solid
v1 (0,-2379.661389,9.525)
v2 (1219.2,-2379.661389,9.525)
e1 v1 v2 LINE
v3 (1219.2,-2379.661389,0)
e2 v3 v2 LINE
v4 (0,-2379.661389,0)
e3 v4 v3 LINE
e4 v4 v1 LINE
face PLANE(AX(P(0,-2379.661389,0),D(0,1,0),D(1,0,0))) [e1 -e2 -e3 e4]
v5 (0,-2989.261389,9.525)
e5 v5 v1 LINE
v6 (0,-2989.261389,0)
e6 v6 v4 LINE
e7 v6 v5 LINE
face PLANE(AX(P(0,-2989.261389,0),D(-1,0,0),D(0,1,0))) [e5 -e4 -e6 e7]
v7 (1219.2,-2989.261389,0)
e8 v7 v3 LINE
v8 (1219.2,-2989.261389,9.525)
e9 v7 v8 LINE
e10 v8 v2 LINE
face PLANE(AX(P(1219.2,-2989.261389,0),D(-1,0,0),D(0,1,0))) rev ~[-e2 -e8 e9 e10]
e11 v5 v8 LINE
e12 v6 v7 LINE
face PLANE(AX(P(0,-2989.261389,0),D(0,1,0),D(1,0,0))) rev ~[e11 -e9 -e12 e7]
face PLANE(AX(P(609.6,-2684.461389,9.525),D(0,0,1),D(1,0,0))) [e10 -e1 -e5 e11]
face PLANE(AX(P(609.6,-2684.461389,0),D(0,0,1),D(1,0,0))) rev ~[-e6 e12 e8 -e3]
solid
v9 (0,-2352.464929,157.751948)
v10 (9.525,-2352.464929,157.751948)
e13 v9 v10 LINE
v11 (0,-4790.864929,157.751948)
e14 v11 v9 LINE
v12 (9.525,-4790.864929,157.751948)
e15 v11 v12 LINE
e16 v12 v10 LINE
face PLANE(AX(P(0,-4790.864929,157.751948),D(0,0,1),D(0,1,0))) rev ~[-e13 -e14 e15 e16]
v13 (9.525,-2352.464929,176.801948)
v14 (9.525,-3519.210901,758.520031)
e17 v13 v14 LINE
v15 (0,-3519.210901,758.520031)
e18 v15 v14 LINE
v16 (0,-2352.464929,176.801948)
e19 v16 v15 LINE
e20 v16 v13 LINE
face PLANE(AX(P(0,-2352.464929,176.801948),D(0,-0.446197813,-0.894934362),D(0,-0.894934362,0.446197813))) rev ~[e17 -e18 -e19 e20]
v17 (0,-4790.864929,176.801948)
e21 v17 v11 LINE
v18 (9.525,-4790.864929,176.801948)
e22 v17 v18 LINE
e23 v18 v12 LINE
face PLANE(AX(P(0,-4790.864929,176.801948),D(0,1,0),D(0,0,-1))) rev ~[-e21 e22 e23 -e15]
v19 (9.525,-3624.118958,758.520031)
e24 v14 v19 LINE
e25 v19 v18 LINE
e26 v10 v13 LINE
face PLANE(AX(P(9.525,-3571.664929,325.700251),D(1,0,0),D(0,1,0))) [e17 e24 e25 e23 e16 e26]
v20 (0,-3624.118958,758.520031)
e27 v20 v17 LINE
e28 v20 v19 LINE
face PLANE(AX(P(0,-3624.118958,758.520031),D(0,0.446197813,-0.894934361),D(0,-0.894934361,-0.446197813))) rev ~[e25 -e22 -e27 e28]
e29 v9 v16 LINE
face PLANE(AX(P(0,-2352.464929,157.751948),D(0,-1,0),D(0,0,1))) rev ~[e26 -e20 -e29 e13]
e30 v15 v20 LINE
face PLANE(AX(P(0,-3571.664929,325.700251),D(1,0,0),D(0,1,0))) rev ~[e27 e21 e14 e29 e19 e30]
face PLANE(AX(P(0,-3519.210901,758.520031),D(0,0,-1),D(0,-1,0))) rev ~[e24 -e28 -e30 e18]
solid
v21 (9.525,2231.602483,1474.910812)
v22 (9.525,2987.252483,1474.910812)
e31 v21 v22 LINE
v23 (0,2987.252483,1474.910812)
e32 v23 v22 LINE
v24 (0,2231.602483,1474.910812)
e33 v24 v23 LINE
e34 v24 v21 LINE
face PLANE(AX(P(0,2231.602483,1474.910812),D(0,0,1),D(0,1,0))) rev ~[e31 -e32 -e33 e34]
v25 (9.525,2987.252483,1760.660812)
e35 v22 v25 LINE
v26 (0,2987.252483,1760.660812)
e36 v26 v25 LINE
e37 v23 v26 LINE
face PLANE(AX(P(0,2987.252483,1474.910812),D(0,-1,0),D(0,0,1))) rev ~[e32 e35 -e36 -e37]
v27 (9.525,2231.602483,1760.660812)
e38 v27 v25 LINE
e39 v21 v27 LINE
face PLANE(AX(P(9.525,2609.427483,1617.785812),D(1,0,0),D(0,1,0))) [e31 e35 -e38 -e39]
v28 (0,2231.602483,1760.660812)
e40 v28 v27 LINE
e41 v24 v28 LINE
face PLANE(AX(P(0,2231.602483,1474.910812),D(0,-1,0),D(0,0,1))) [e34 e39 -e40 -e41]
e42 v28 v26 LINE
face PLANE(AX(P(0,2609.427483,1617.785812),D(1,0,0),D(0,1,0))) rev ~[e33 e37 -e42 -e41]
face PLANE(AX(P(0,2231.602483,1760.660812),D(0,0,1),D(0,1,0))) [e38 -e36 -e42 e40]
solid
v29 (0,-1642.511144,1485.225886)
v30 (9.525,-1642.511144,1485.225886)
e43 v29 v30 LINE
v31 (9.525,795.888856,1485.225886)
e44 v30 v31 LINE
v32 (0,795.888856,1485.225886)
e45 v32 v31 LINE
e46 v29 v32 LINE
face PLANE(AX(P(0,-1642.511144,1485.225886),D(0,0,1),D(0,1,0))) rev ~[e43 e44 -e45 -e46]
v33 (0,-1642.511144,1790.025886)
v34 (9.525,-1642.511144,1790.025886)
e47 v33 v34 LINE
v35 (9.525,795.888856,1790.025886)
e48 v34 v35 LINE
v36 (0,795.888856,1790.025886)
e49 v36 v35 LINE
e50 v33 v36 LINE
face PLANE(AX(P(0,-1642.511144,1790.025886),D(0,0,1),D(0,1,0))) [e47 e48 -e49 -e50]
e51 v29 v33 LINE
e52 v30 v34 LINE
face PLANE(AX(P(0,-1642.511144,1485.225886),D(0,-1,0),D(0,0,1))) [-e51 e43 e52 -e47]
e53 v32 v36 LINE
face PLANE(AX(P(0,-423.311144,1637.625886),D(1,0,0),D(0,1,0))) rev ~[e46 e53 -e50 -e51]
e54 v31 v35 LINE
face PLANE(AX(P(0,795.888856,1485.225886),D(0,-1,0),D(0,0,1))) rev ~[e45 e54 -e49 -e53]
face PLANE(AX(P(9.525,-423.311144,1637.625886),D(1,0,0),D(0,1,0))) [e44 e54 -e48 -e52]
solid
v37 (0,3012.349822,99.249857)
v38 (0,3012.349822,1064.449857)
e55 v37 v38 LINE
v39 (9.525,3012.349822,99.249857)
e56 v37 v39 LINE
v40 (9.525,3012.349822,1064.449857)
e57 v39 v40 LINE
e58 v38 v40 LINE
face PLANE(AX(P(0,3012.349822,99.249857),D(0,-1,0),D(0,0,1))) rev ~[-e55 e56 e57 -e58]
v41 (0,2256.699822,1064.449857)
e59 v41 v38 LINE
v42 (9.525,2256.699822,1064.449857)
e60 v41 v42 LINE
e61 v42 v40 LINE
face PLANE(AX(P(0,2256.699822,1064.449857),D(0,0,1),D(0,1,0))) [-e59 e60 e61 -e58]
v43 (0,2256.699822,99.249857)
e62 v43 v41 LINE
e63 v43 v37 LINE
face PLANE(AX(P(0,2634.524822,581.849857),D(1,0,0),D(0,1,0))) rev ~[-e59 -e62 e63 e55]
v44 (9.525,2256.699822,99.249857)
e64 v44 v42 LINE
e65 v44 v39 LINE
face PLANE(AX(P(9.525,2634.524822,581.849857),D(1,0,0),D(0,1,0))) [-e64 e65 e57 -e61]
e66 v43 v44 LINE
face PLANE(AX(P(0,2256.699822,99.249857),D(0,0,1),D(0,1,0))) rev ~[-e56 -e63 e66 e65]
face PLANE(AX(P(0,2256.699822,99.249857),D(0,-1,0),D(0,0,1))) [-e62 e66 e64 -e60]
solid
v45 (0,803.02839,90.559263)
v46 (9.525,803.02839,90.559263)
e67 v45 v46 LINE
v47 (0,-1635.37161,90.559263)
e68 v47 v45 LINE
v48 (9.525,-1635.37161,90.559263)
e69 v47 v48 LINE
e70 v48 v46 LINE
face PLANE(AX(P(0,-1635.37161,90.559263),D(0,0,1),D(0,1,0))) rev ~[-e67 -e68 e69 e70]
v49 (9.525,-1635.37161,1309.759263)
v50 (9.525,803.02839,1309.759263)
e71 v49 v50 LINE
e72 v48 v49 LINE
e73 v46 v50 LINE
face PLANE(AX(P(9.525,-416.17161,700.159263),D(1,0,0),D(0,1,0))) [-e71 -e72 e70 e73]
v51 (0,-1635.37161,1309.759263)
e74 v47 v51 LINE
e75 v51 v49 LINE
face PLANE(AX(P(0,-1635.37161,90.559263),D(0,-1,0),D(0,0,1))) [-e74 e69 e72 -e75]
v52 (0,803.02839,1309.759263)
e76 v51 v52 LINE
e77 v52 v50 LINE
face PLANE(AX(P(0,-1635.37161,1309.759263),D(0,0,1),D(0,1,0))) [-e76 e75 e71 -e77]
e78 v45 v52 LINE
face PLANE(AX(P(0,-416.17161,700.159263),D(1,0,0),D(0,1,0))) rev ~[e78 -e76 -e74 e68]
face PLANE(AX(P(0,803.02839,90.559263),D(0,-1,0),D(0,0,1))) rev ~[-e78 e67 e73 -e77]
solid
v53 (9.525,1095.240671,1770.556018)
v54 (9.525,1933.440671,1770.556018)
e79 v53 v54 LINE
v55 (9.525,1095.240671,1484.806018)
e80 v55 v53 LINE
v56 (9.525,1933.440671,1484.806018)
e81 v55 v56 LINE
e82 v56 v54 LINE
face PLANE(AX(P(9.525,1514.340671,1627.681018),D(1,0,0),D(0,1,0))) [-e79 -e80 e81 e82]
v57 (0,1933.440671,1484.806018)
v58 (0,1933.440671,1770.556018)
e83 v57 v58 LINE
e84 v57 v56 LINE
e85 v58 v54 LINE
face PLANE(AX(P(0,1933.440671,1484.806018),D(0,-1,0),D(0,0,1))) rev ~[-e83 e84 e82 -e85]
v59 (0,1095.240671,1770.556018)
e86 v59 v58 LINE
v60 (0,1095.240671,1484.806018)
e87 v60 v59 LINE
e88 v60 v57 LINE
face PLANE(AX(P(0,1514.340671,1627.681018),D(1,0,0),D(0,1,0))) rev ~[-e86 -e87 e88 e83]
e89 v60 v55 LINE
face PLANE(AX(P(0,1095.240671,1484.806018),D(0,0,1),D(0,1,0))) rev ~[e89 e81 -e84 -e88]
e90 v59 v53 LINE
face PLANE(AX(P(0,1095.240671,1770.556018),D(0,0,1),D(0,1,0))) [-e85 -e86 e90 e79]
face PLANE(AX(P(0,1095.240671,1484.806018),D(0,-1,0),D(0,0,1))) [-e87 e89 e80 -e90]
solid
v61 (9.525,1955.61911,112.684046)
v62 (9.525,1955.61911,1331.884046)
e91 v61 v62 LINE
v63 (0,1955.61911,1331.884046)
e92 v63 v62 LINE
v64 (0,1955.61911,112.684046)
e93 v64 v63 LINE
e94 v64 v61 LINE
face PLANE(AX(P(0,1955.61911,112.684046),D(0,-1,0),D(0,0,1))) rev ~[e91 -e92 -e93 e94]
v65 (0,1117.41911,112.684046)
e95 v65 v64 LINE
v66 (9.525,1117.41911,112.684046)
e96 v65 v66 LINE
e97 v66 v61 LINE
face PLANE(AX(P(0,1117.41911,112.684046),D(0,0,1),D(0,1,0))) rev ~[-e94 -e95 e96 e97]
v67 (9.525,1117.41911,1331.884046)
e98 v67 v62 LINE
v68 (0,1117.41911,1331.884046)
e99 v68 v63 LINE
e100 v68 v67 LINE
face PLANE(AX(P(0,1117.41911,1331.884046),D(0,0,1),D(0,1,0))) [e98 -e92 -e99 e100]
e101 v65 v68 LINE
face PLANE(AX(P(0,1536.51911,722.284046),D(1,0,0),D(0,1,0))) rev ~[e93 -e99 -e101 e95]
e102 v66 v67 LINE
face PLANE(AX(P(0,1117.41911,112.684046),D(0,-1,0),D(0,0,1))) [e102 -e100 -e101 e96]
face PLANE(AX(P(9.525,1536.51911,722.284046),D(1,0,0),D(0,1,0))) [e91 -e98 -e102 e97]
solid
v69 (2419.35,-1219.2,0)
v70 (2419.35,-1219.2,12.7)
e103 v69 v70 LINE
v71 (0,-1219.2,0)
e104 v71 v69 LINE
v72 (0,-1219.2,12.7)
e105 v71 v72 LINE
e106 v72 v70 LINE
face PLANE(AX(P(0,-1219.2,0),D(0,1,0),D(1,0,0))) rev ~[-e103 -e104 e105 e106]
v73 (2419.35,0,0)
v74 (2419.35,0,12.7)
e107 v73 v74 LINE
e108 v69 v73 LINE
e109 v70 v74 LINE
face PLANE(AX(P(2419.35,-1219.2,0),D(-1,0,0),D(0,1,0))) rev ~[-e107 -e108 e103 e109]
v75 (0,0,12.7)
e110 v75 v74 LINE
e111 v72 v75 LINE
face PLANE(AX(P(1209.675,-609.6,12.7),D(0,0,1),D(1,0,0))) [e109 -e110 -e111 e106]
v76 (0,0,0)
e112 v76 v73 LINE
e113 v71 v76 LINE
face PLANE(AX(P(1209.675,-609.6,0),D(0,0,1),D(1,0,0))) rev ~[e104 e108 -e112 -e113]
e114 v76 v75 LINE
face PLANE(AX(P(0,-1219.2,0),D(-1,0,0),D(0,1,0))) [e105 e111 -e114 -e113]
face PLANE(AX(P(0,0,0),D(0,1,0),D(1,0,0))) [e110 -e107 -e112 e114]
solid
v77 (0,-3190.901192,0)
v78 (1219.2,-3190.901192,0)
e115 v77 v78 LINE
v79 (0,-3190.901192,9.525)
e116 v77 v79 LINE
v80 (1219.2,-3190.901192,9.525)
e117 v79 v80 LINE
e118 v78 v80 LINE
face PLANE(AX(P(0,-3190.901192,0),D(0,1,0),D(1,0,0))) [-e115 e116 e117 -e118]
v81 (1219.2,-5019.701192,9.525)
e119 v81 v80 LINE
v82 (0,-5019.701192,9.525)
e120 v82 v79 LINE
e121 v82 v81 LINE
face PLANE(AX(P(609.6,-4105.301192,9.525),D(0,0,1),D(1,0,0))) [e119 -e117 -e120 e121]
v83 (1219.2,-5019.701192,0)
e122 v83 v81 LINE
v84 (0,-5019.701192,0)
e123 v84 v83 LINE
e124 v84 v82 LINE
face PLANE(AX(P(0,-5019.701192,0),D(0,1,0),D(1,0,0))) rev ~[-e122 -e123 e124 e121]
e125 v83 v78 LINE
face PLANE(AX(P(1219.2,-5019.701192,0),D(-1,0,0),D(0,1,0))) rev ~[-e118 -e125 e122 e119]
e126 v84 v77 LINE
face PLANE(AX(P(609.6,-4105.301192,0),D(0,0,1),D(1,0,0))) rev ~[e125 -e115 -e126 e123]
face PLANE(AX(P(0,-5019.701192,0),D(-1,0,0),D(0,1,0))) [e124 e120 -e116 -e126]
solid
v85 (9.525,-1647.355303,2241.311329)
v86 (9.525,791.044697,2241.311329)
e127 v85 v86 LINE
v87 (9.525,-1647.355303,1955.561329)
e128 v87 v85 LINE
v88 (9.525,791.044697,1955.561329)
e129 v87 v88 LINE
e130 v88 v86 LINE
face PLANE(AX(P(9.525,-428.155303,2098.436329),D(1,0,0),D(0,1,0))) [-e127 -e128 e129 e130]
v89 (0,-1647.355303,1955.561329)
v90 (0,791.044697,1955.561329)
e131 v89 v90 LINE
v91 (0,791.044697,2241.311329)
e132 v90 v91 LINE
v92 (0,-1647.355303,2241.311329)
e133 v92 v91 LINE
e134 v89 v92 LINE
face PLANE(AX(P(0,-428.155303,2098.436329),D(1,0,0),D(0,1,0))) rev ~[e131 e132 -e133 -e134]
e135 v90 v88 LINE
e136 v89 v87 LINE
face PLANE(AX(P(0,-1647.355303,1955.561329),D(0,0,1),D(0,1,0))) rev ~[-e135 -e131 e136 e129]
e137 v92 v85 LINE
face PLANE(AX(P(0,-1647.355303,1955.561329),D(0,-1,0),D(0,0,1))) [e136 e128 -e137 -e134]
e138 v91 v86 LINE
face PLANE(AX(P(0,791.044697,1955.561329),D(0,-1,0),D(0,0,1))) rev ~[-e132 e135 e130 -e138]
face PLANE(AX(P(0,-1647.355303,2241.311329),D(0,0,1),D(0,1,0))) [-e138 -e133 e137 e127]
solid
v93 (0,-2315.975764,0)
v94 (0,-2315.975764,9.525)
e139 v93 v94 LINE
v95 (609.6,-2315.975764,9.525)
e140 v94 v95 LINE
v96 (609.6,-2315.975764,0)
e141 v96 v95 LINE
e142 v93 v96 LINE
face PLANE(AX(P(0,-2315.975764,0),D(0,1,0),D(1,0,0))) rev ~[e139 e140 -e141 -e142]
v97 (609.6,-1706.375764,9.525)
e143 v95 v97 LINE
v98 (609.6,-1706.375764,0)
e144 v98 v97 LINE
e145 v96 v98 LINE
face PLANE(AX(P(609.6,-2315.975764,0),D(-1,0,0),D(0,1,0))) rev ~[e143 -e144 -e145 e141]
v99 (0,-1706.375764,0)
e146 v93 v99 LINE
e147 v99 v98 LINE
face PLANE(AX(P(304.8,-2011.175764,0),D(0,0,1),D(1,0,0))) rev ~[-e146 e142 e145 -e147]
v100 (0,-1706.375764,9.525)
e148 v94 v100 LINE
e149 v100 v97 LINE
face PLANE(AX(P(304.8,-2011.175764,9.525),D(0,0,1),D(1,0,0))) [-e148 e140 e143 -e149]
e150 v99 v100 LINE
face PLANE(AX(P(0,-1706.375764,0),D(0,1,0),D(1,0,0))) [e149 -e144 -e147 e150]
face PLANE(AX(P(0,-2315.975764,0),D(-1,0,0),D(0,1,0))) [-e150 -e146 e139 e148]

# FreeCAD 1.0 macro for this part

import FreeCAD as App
import Part
import Sketcher

V = App.Vector
Q = App.Units.Quantity


def add_polygon(sketch, points):
    """Adds a closed chain of lines whose ends are joined by coincident constraints."""
    first, n = sketch.GeometryCount, len(points)
    for a, b in zip(points, points[1:] + points[:1]):
        sketch.addGeometry(Part.LineSegment(App.Vector(*a, 0), App.Vector(*b, 0)), False)
    for i in range(n):
        sketch.addConstraint(Sketcher.Constraint("Coincident", first + i, 2, first + (i + 1) % n, 1))

doc = App.newDocument("Part")
body = doc.addObject("PartDesign::Body", "Body")

# Sketch on XY plane
sketch1 = body.newObject("Sketcher::SketchObject", "Sketch")
sketch1.AttachmentSupport = (doc.getObject("XY_Plane"), [""])
sketch1.MapMode = "FlatFace"
add_polygon(sketch1, [(0, 0), (0, -1219.2), (2419.35, -1219.2), (2419.35, 0)])  # lines 0-3
sketch1.addConstraint([
    Sketcher.Constraint("Vertical", 0),
    Sketcher.Constraint("Horizontal", 1),
    Sketcher.Constraint("Vertical", 2),
    Sketcher.Constraint("Horizontal", 3),
    Sketcher.Constraint("Coincident", 3, 2, -1, 1),
    Sketcher.Constraint("DistanceY", 0, 2, 0, 1, Q("48 in")),
    Sketcher.Constraint("DistanceX", 1, 1, 1, 2, Q("95.25 in")),
])
pad1 = body.newObject("PartDesign::Pad", "Pad")
pad1.Profile = sketch1
pad1.Length = Q("0.5 in")
body2 = doc.addObject("PartDesign::Body", "Body001")

# Sketch on YZ plane
sketch2 = body2.newObject("Sketcher::SketchObject", "Sketch001")
sketch2.AttachmentSupport = (doc.getObject("YZ_Plane001"), [""])
sketch2.MapMode = "FlatFace"
add_polygon(sketch2, [(-1635.37161, 1309.759263), (-1635.37161, 90.559263), (803.02839, 90.559263), (803.02839, 1309.759263)])  # lines 0-3
sketch2.addConstraint([
    Sketcher.Constraint("Vertical", 0),
    Sketcher.Constraint("Horizontal", 1),
    Sketcher.Constraint("Vertical", 2),
    Sketcher.Constraint("Horizontal", 3),
    Sketcher.Constraint("DistanceX", 1, 1, 1, 2, Q("96 in")),
    Sketcher.Constraint("DistanceY", 0, 2, 0, 1, Q("48 in")),
    Sketcher.Constraint("DistanceX", 0, 2, -1, 1, 1635.37161),
    Sketcher.Constraint("DistanceY", -1, 1, 0, 2, 90.559263),
])
pad2 = body2.newObject("PartDesign::Pad", "Pad001")
pad2.Profile = sketch2
pad2.Length = Q("0.375 in")
body3 = doc.addObject("PartDesign::Body", "Body002")

# Sketch on YZ plane
sketch3 = body3.newObject("Sketcher::SketchObject", "Sketch002")
sketch3.AttachmentSupport = (doc.getObject("YZ_Plane002"), [""])
sketch3.MapMode = "FlatFace"
add_polygon(sketch3, [(-1642.511144, 1790.025886), (-1642.511144, 1485.225886), (795.888856, 1485.225886), (795.888856, 1790.025886)])  # lines 0-3
sketch3.addConstraint([
    Sketcher.Constraint("Vertical", 0),
    Sketcher.Constraint("Horizontal", 1),
    Sketcher.Constraint("Vertical", 2),
    Sketcher.Constraint("Horizontal", 3),
    Sketcher.Constraint("DistanceX", 1, 1, 1, 2, Q("96 in")),
    Sketcher.Constraint("DistanceY", 0, 2, 0, 1, Q("12 in")),
    Sketcher.Constraint("DistanceX", 0, 2, -1, 1, 1642.511144),
    Sketcher.Constraint("DistanceY", -1, 1, 0, 2, 1485.225886),
])
pad3 = body3.newObject("PartDesign::Pad", "Pad002")
pad3.Profile = sketch3
pad3.Length = Q("0.375 in")
body4 = doc.addObject("PartDesign::Body", "Body003")

# Sketch on YZ plane
sketch4 = body4.newObject("Sketcher::SketchObject", "Sketch003")
sketch4.AttachmentSupport = (doc.getObject("YZ_Plane003"), [""])
sketch4.MapMode = "FlatFace"
add_polygon(sketch4, [(1117.41911, 1331.884046), (1117.41911, 112.684046), (1955.61911, 112.684046), (1955.61911, 1331.884046)])  # lines 0-3
sketch4.addConstraint([
    Sketcher.Constraint("Vertical", 0),
    Sketcher.Constraint("Horizontal", 1),
    Sketcher.Constraint("Vertical", 2),
    Sketcher.Constraint("Horizontal", 3),
    Sketcher.Constraint("DistanceX", 1, 1, 1, 2, Q("33 in")),
    Sketcher.Constraint("DistanceY", 0, 2, 0, 1, Q("48 in")),
    Sketcher.Constraint("DistanceX", -1, 1, 0, 2, 1117.41911),
    Sketcher.Constraint("DistanceY", -1, 1, 0, 2, 112.684046),
])
pad4 = body4.newObject("PartDesign::Pad", "Pad003")
pad4.Profile = sketch4
pad4.Length = Q("0.375 in")
body5 = doc.addObject("PartDesign::Body", "Body004")

# Sketch on YZ plane
sketch5 = body5.newObject("Sketcher::SketchObject", "Sketch004")
sketch5.AttachmentSupport = (doc.getObject("YZ_Plane004"), [""])
sketch5.MapMode = "FlatFace"
add_polygon(sketch5, [(2256.699822, 1064.449857), (2256.699822, 99.249857), (3012.349822, 99.249857), (3012.349822, 1064.449857)])  # lines 0-3
sketch5.addConstraint([
    Sketcher.Constraint("Vertical", 0),
    Sketcher.Constraint("Horizontal", 1),
    Sketcher.Constraint("Vertical", 2),
    Sketcher.Constraint("Horizontal", 3),
    Sketcher.Constraint("DistanceY", 0, 2, 0, 1, Q("38 in")),
    Sketcher.Constraint("DistanceX", 1, 1, 1, 2, Q("29.75 in")),
    Sketcher.Constraint("DistanceX", -1, 1, 0, 2, 2256.699822),
    Sketcher.Constraint("DistanceY", -1, 1, 0, 2, 99.249857),
])
pad5 = body5.newObject("PartDesign::Pad", "Pad004")
pad5.Profile = sketch5
pad5.Length = Q("0.375 in")
body6 = doc.addObject("PartDesign::Body", "Body005")

# Sketch on YZ plane
sketch6 = body6.newObject("Sketcher::SketchObject", "Sketch005")
sketch6.AttachmentSupport = (doc.getObject("YZ_Plane005"), [""])
sketch6.MapMode = "FlatFace"
add_polygon(sketch6, [(1095.240671, 1770.556018), (1095.240671, 1484.806018), (1933.440671, 1484.806018), (1933.440671, 1770.556018)])  # lines 0-3
sketch6.addConstraint([
    Sketcher.Constraint("Vertical", 0),
    Sketcher.Constraint("Horizontal", 1),
    Sketcher.Constraint("Vertical", 2),
    Sketcher.Constraint("Horizontal", 3),
    Sketcher.Constraint("DistanceX", 1, 1, 1, 2, Q("33 in")),
    Sketcher.Constraint("DistanceY", 0, 2, 0, 1, Q("11.25 in")),
    Sketcher.Constraint("DistanceX", -1, 1, 0, 2, 1095.240671),
    Sketcher.Constraint("DistanceY", -1, 1, 0, 2, 1484.806018),
])
pad6 = body6.newObject("PartDesign::Pad", "Pad005")
pad6.Profile = sketch6
pad6.Length = Q("0.375 in")
body7 = doc.addObject("PartDesign::Body", "Body006")

# Sketch on YZ plane
sketch7 = body7.newObject("Sketcher::SketchObject", "Sketch006")
sketch7.AttachmentSupport = (doc.getObject("YZ_Plane006"), [""])
sketch7.MapMode = "FlatFace"
add_polygon(sketch7, [(2231.602483, 1760.660812), (2231.602483, 1474.910812), (2987.252483, 1474.910812), (2987.252483, 1760.660812)])  # lines 0-3
sketch7.addConstraint([
    Sketcher.Constraint("Vertical", 0),
    Sketcher.Constraint("Horizontal", 1),
    Sketcher.Constraint("Vertical", 2),
    Sketcher.Constraint("Horizontal", 3),
    Sketcher.Constraint("DistanceX", 1, 1, 1, 2, Q("29.75 in")),
    Sketcher.Constraint("DistanceY", 0, 2, 0, 1, Q("11.25 in")),
    Sketcher.Constraint("DistanceY", -1, 1, 0, 2, 1474.910812),
    Sketcher.Constraint("DistanceX", -1, 1, 0, 2, 2231.602483),
])
pad7 = body7.newObject("PartDesign::Pad", "Pad006")
pad7.Profile = sketch7
pad7.Length = Q("0.375 in")
body8 = doc.addObject("PartDesign::Body", "Body007")

# Sketch on XY plane
sketch8 = body8.newObject("Sketcher::SketchObject", "Sketch007")
sketch8.AttachmentSupport = (doc.getObject("XY_Plane007"), [""])
sketch8.MapMode = "FlatFace"
add_polygon(sketch8, [(0, -3190.901192), (0, -5019.701192), (1219.2, -5019.701192), (1219.2, -3190.901192)])  # lines 0-3
sketch8.addConstraint([
    Sketcher.Constraint("Vertical", 0),
    Sketcher.Constraint("Horizontal", 1),
    Sketcher.Constraint("Vertical", 2),
    Sketcher.Constraint("Horizontal", 3),
    Sketcher.Constraint("PointOnObject", 0, 2, -2),
    Sketcher.Constraint("DistanceX", 1, 1, 1, 2, Q("48 in")),
    Sketcher.Constraint("DistanceY", 0, 2, 0, 1, Q("72 in")),
    Sketcher.Constraint("DistanceY", 2, 2, -1, 1, 3190.901192),
])
pad8 = body8.newObject("PartDesign::Pad", "Pad007")
pad8.Profile = sketch8
pad8.Length = Q("0.375 in")
body9 = doc.addObject("PartDesign::Body", "Body008")

# Sketch on XY plane
sketch9 = body9.newObject("Sketcher::SketchObject", "Sketch008")
sketch9.AttachmentSupport = (doc.getObject("XY_Plane008"), [""])
sketch9.MapMode = "FlatFace"
add_polygon(sketch9, [(0, -2379.661389), (0, -2989.261389), (1219.2, -2989.261389), (1219.2, -2379.661389)])  # lines 0-3
sketch9.addConstraint([
    Sketcher.Constraint("Vertical", 0),
    Sketcher.Constraint("Horizontal", 1),
    Sketcher.Constraint("Vertical", 2),
    Sketcher.Constraint("Horizontal", 3),
    Sketcher.Constraint("PointOnObject", 0, 2, -2),
    Sketcher.Constraint("DistanceX", 1, 1, 1, 2, Q("48 in")),
    Sketcher.Constraint("DistanceY", 0, 2, 0, 1, Q("24 in")),
    Sketcher.Constraint("DistanceY", 0, 2, -1, 1, 2989.261389),
])
pad9 = body9.newObject("PartDesign::Pad", "Pad008")
pad9.Profile = sketch9
pad9.Length = Q("0.375 in")
body10 = doc.addObject("PartDesign::Body", "Body009")

# Sketch on XY plane
sketch10 = body10.newObject("Sketcher::SketchObject", "Sketch009")
sketch10.AttachmentSupport = (doc.getObject("XY_Plane009"), [""])
sketch10.MapMode = "FlatFace"
add_polygon(sketch10, [(0, -1706.375764), (0, -2315.975764), (609.6, -2315.975764), (609.6, -1706.375764)])  # lines 0-3
sketch10.addConstraint([
    Sketcher.Constraint("Vertical", 0),
    Sketcher.Constraint("Horizontal", 1),
    Sketcher.Constraint("Vertical", 2),
    Sketcher.Constraint("Horizontal", 3),
    Sketcher.Constraint("PointOnObject", 0, 2, -2),
    Sketcher.Constraint("Equal", 3, 0),
    Sketcher.Constraint("DistanceX", 1, 1, 1, 2, Q("24 in")),
    Sketcher.Constraint("DistanceY", 0, 2, -1, 1, 2315.975764),
])
pad10 = body10.newObject("PartDesign::Pad", "Pad009")
pad10.Profile = sketch10
pad10.Length = Q("0.375 in")
body11 = doc.addObject("PartDesign::Body", "Body010")

# Sketch on YZ plane
sketch11 = body11.newObject("Sketcher::SketchObject", "Sketch010")
sketch11.AttachmentSupport = (doc.getObject("YZ_Plane010"), [""])
sketch11.MapMode = "FlatFace"
add_polygon(sketch11, [(-3624.118958, 758.520031), (-4790.864929, 176.801948), (-4790.864929, 157.751948), (-2352.464929, 157.751948), (-2352.464929, 176.801948), (-3519.210901, 758.520031)])  # lines 0-5
sketch11.addConstraint([
    Sketcher.Constraint("Vertical", 1),
    Sketcher.Constraint("Horizontal", 2),
    Sketcher.Constraint("Vertical", 3),
    Sketcher.Constraint("Horizontal", 5),
    Sketcher.Constraint("Horizontal", 0, 2, 3, 2),
    Sketcher.Constraint("Equal", 0, 4),
    Sketcher.Constraint("DistanceX", 2, 1, 2, 2, Q("96 in")),
    Sketcher.Constraint("DistanceY", 1, 2, 1, 1, Q("0.75 in")),
    Sketcher.Constraint("Angle", 0, Q("-153.5 deg")),
    Sketcher.Constraint("Distance", 4, 1303.722398),
    Sketcher.Constraint("DistanceX", 4, 2, -1, 1, 3519.210901),
    Sketcher.Constraint("DistanceY", -1, 1, 0, 2, 176.801948),
])
pad11 = body11.newObject("PartDesign::Pad", "Pad010")
pad11.Profile = sketch11
pad11.Length = Q("0.375 in")
body12 = doc.addObject("PartDesign::Body", "Body011")

# Sketch on YZ plane
sketch12 = body12.newObject("Sketcher::SketchObject", "Sketch011")
sketch12.AttachmentSupport = (doc.getObject("YZ_Plane011"), [""])
sketch12.MapMode = "FlatFace"
add_polygon(sketch12, [(-1647.355303, 2241.311329), (-1647.355303, 1955.561329), (791.044697, 1955.561329), (791.044697, 2241.311329)])  # lines 0-3
sketch12.addConstraint([
    Sketcher.Constraint("Vertical", 0),
    Sketcher.Constraint("Horizontal", 1),
    Sketcher.Constraint("Vertical", 2),
    Sketcher.Constraint("Horizontal", 3),
    Sketcher.Constraint("DistanceX", 1, 1, 1, 2, Q("96 in")),
    Sketcher.Constraint("DistanceY", 0, 2, 0, 1, Q("11.25 in")),
    Sketcher.Constraint("DistanceY", -1, 1, 0, 2, 1955.561329),
    Sketcher.Constraint("DistanceX", 0, 2, -1, 1, 1647.355303),
])
pad12 = body12.newObject("PartDesign::Pad", "Pad011")
pad12.Profile = sketch12
pad12.Length = Q("0.375 in")

doc.recompute()
